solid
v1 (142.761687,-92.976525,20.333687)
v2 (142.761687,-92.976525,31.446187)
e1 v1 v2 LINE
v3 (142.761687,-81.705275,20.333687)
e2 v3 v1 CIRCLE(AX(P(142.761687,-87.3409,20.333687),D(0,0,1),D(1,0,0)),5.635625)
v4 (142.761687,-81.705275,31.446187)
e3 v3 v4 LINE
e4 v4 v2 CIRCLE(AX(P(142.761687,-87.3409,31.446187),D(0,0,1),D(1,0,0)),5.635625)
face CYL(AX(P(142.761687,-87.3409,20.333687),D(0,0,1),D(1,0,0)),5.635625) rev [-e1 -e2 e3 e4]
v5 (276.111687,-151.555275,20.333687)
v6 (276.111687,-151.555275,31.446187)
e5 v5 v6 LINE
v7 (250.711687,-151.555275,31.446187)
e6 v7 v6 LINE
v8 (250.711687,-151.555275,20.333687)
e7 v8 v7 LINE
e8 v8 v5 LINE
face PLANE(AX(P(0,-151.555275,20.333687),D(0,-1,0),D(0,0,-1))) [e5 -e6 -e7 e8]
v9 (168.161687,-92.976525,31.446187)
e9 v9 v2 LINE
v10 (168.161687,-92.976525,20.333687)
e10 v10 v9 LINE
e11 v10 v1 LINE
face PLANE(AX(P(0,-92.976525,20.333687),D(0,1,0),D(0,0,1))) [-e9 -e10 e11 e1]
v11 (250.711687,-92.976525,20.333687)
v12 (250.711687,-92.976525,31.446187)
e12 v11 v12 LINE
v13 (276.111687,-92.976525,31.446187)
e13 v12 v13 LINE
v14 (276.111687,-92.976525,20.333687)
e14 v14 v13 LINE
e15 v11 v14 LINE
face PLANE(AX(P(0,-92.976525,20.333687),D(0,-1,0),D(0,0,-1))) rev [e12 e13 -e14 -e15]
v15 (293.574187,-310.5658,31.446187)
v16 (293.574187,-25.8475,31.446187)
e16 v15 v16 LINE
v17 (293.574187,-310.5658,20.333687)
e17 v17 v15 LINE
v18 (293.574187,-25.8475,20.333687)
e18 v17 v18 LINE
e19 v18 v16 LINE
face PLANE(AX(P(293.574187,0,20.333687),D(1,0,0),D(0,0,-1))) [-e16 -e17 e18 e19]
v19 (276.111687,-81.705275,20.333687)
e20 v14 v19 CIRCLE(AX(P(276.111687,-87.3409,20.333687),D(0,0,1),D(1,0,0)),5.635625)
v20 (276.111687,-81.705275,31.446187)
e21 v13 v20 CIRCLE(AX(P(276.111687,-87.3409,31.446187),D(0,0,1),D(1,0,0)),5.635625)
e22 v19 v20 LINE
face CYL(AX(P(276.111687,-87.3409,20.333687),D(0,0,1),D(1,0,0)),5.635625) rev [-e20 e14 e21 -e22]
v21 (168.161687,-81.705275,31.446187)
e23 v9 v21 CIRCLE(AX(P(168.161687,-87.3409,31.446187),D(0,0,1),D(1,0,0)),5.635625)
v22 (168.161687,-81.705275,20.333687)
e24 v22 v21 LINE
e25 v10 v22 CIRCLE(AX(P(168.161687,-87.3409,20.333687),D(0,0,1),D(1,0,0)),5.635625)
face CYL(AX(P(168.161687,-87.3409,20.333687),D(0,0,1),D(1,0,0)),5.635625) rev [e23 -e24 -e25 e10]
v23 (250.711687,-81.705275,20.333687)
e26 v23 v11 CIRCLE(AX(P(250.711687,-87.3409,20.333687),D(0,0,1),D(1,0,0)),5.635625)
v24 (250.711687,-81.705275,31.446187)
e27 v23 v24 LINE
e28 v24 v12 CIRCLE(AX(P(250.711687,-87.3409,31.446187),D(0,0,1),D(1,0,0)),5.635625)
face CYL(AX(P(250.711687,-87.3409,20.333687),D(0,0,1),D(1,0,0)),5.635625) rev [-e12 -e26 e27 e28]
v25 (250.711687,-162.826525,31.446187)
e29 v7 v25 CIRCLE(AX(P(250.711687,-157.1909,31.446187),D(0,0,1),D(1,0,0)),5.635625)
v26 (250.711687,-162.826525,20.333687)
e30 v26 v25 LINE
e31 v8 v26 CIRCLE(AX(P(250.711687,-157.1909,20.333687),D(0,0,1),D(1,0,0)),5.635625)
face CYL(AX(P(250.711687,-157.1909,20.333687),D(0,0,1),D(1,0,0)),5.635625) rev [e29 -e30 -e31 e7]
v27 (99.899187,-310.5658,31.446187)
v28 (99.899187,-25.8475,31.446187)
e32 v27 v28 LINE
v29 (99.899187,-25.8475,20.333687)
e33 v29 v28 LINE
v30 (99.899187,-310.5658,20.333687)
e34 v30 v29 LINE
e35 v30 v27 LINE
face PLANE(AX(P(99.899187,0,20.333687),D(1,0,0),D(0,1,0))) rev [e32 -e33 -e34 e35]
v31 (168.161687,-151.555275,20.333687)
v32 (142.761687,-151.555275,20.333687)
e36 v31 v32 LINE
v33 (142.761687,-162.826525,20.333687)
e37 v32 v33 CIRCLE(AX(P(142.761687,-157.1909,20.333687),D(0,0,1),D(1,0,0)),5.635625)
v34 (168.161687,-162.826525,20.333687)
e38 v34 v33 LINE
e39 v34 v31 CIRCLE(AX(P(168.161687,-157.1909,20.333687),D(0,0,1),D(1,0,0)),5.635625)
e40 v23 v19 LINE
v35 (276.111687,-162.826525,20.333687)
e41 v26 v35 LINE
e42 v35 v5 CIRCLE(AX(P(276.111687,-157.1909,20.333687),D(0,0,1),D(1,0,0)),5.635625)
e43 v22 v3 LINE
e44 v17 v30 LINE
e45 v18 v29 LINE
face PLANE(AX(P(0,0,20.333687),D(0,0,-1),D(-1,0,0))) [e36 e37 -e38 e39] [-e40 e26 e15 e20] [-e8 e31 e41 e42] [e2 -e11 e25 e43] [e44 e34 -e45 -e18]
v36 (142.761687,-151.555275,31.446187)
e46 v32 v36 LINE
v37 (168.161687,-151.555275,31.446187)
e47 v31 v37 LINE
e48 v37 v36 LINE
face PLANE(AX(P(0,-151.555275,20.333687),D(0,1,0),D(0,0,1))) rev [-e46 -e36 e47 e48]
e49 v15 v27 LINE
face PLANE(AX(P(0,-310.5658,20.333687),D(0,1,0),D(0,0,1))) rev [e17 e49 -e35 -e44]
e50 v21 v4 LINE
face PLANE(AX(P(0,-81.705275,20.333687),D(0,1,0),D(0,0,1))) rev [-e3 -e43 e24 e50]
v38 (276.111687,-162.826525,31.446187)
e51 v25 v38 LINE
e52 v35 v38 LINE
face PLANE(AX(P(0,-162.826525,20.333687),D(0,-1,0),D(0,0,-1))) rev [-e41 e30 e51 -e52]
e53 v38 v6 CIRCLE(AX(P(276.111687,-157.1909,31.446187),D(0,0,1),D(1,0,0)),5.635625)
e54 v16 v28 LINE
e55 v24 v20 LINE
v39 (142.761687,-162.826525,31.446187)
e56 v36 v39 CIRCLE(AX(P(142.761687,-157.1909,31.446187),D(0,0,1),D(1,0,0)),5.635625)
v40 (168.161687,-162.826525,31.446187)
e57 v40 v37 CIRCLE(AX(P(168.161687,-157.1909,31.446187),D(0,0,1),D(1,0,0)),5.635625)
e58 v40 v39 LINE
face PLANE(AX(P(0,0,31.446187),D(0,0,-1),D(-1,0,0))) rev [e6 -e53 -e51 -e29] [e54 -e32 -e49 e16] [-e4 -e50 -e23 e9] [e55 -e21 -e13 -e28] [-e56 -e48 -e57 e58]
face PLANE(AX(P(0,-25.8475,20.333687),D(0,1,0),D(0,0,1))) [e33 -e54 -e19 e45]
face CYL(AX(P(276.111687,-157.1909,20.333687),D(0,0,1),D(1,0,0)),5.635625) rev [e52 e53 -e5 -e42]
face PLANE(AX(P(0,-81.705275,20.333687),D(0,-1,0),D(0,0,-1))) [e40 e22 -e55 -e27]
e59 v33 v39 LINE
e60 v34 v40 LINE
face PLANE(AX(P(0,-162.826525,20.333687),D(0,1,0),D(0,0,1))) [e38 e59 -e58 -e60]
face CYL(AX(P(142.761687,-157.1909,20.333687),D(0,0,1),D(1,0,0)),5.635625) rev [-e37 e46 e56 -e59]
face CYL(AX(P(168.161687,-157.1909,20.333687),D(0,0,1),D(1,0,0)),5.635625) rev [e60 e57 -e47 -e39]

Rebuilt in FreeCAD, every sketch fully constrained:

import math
import FreeCAD as App
import Part
import Sketcher
Q = App.Units.Quantity


def add_polygon(sketch, points):
    """Adds a closed chain of lines whose ends are joined by coincident constraints."""
    first, n = sketch.GeometryCount, len(points)
    for a, b in zip(points, points[1:] + points[:1]):
        sketch.addGeometry(Part.LineSegment(App.Vector(*a, 0), App.Vector(*b, 0)), False)
    for i in range(n):
        sketch.addConstraint(Sketcher.Constraint("Coincident", first + i, 2, first + (i + 1) % n, 1))

doc = App.newDocument("Part")
params = doc.addObject("Spreadsheet::Sheet", "Params")
for row, (alias, value) in enumerate([
    ("sketch1_width", "1 in"),
    ("sketch1_width2", "7.625 in"),
    ("pad1_length", "0.4375 in"),
], start=1):
    params.set(f"A{row}", alias)
    params.set(f"B{row}", "=" + value)
    params.setAlias(f"B{row}", alias)

body = doc.addObject("PartDesign::Body", "Body")

sketch1 = body.newObject("Sketcher::SketchObject", "Sketch")
sketch1.AttachmentSupport = (doc.getObject("XY_Plane"), [""])
sketch1.MapMode = "FlatFace"
sketch1.AttachmentOffset = App.Placement(App.Vector(0, 0, 20.333687), App.Rotation())
add_polygon(sketch1, [(294, -311), (294, -26), (100, -26), (100, -311)])
sketch1.addGeometry(Part.LineSegment(App.Vector(251, -152, 0), App.Vector(276, -152, 0)), False)
sketch1.addGeometry(Part.ArcOfCircle(Part.Circle(App.Vector(276, -157, 0), App.Vector(0, 0, 1), 6), math.radians(-90), math.radians(90)), False)
sketch1.addGeometry(Part.LineSegment(App.Vector(276, -163, 0), App.Vector(251, -163, 0)), False)
sketch1.addGeometry(Part.ArcOfCircle(Part.Circle(App.Vector(251, -157, 0), App.Vector(0, 0, 1), 6), math.radians(90), math.radians(270)), False)
sketch1.addGeometry(Part.LineSegment(App.Vector(143, -152, 0), App.Vector(168, -152, 0)), False)
sketch1.addGeometry(Part.ArcOfCircle(Part.Circle(App.Vector(168, -157, 0), App.Vector(0, 0, 1), 6), math.radians(-90), math.radians(90)), False)
sketch1.addGeometry(Part.LineSegment(App.Vector(168, -163, 0), App.Vector(143, -163, 0)), False)
sketch1.addGeometry(Part.ArcOfCircle(Part.Circle(App.Vector(143, -157, 0), App.Vector(0, 0, 1), 6), math.radians(90), math.radians(270)), False)
sketch1.addGeometry(Part.LineSegment(App.Vector(251, -82, 0), App.Vector(276, -82, 0)), False)
sketch1.addGeometry(Part.ArcOfCircle(Part.Circle(App.Vector(276, -87, 0), App.Vector(0, 0, 1), 6), math.radians(-90), math.radians(90)), False)
sketch1.addGeometry(Part.LineSegment(App.Vector(276, -93, 0), App.Vector(251, -93, 0)), False)
sketch1.addGeometry(Part.ArcOfCircle(Part.Circle(App.Vector(251, -87, 0), App.Vector(0, 0, 1), 6), math.radians(90), math.radians(270)), False)
sketch1.addGeometry(Part.LineSegment(App.Vector(168, -93, 0), App.Vector(143, -93, 0)), False)
sketch1.addGeometry(Part.ArcOfCircle(Part.Circle(App.Vector(143, -87, 0), App.Vector(0, 0, 1), 6), math.radians(90), math.radians(270)), False)
sketch1.addGeometry(Part.LineSegment(App.Vector(143, -82, 0), App.Vector(168, -82, 0)), False)
sketch1.addGeometry(Part.ArcOfCircle(Part.Circle(App.Vector(168, -87, 0), App.Vector(0, 0, 1), 6), math.radians(-90), math.radians(90)), False)
sketch1.addConstraint([
    Sketcher.Constraint("Tangent", 4, 2, 5, 2),
    Sketcher.Constraint("Tangent", 5, 1, 6, 1),
    Sketcher.Constraint("Tangent", 6, 2, 7, 2),
    Sketcher.Constraint("Tangent", 7, 1, 4, 1),
    Sketcher.Constraint("Tangent", 8, 2, 9, 2),
    Sketcher.Constraint("Tangent", 9, 1, 10, 1),
    Sketcher.Constraint("Tangent", 10, 2, 11, 2),
    Sketcher.Constraint("Tangent", 11, 1, 8, 1),
    Sketcher.Constraint("Tangent", 12, 2, 13, 2),
    Sketcher.Constraint("Tangent", 13, 1, 14, 1),
    Sketcher.Constraint("Tangent", 14, 2, 15, 2),
    Sketcher.Constraint("Tangent", 15, 1, 12, 1),
    Sketcher.Constraint("Tangent", 16, 2, 17, 2),
    Sketcher.Constraint("Tangent", 17, 1, 18, 1),
    Sketcher.Constraint("Tangent", 18, 2, 19, 2),
    Sketcher.Constraint("Tangent", 19, 1, 16, 1),
    Sketcher.Constraint("Vertical", 0),
    Sketcher.Constraint("Horizontal", 1),
    Sketcher.Constraint("Vertical", 2),
    Sketcher.Constraint("Horizontal", 3),
    Sketcher.Constraint("Horizontal", 4),
    Sketcher.Constraint("Horizontal", 6),
    Sketcher.Constraint("Horizontal", 8),
    Sketcher.Constraint("Horizontal", 10),
    Sketcher.Constraint("Horizontal", 12),
    Sketcher.Constraint("Horizontal", 14),
    Sketcher.Constraint("Horizontal", 16),
    Sketcher.Constraint("Horizontal", 18),
    Sketcher.Constraint("Equal", 7, 9),
    Sketcher.Constraint("Equal", 11, 13),
    Sketcher.Constraint("Equal", 15, 17),
    Sketcher.Constraint("Horizontal", 7, 3, 9, 3),
    Sketcher.Constraint("Horizontal", 15, 3, 17, 3),
    Sketcher.Constraint("Vertical", 5, 3, 13, 3),
    Sketcher.Constraint("Vertical", 7, 3, 15, 3),
    Sketcher.Constraint("Vertical", 11, 3, 17, 3),
    Sketcher.Constraint("Vertical", 9, 3, 19, 3),
    Sketcher.Constraint("Equal", 6, 8),
    Sketcher.Constraint("DistanceX", 4, 1, 4, 2, Q("1 in")),
    Sketcher.Constraint("DistanceX", 1, 2, 1, 1, Q("7.625 in")),
    Sketcher.Constraint("DistanceX", 9, 3, 7, 3, Q("3.25 in")),
    Sketcher.Constraint("DistanceY", 5, 3, 13, 3, Q("2.75 in")),
    Sketcher.Constraint("DistanceY", 2, 2, -1, 1, Q("12.227 in")),
    Sketcher.Constraint("DistanceX", 13, 3, 0, 2, Q("0.6875 in")),
    Sketcher.Constraint("DistanceY", 13, 3, 0, 2, Q("2.421 in")),
    Sketcher.Constraint("DistanceY", 0, 1, 0, 2, Q("284.7183 mm")),
    Sketcher.Constraint("Radius", 5, Q("5.635625 mm")),
    Sketcher.Constraint("DistanceX", -1, 1, 5, 3, Q("276.111687 mm")),
])
sketch1.setExpression("Constraints[42]", "Params.sketch1_width")
sketch1.setExpression("Constraints[43]", "Params.sketch1_width2")
pad1 = body.newObject("PartDesign::Pad", "Pad")
pad1.Profile = sketch1
pad1.setExpression("Length", "Params.pad1_length")

doc.recompute()
